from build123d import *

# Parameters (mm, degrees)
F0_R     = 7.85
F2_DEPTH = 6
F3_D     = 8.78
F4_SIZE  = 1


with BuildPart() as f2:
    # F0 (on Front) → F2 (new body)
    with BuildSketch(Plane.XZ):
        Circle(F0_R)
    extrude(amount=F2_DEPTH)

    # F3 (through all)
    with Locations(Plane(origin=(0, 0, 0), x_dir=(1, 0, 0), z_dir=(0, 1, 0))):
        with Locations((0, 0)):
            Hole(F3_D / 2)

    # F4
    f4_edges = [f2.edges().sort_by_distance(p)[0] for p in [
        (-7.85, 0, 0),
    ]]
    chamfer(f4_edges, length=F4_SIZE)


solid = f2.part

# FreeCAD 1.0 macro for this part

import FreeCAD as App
import Part
import Sketcher

V = App.Vector
Q = App.Units.Quantity


def edges_at(feature, points):
    """Names of the edges that pass closest to the given points."""
    edges = feature.Shape.Edges
    near = lambda p: min(range(len(edges)), key=lambda i: edges[i].distToShape(Part.Vertex(*p))[0])
    return sorted({f"Edge{near(p) + 1}" for p in points})

doc = App.newDocument("Part")
body = doc.addObject("PartDesign::Body", "Body")

sketch1 = doc.addObject("Sketcher::SketchObject", "Sketch")
body.addObject(sketch1)
sketch1.AttachmentSupport = (doc.XZ_Plane, [""])
sketch1.MapMode = "FlatFace"
sketch1.addGeometry(Part.Circle(V(0, 0, 0), V(0, 0, 1), 7.85), False)
sketch1.addConstraint(Sketcher.Constraint("Coincident", 0, 3, -1, 1))
sketch1.addConstraint(Sketcher.Constraint("Diameter", 0, Q("15.7 mm")))
pad1 = doc.addObject("PartDesign::Pad", "Pad")
body.addObject(pad1)
pad1.Profile = sketch1
pad1.Length = 6

sketch2 = doc.addObject("Sketcher::SketchObject", "Sketch001")
body.addObject(sketch2)
sketch2.AttachmentSupport = (doc.XZ_Plane, [""])
sketch2.MapMode = "FlatFace"
sketch2.addGeometry(Part.Circle(V(0, 0, 0), V(0, 0, 1), 4.39), False)
sketch2.addConstraint(Sketcher.Constraint("Coincident", 0, 3, -1, 1))
sketch2.addConstraint(Sketcher.Constraint("Diameter", 0, Q("8.78 mm")))
doc.recompute()
hole = doc.addObject("PartDesign::Hole", "Hole")
body.addObject(hole)
hole.Profile = sketch2
hole.ThreadType = "None"
hole.Diameter = 8.78
hole.DepthType = "ThroughAll"
hole.Reversed = True
doc.recompute()

chamfer = doc.addObject("PartDesign::Chamfer", "Chamfer")
body.addObject(chamfer)
chamfer.Base = (hole, edges_at(hole, [(-7.85, 0, 0)]))
chamfer.Size = 1

doc.recompute()
